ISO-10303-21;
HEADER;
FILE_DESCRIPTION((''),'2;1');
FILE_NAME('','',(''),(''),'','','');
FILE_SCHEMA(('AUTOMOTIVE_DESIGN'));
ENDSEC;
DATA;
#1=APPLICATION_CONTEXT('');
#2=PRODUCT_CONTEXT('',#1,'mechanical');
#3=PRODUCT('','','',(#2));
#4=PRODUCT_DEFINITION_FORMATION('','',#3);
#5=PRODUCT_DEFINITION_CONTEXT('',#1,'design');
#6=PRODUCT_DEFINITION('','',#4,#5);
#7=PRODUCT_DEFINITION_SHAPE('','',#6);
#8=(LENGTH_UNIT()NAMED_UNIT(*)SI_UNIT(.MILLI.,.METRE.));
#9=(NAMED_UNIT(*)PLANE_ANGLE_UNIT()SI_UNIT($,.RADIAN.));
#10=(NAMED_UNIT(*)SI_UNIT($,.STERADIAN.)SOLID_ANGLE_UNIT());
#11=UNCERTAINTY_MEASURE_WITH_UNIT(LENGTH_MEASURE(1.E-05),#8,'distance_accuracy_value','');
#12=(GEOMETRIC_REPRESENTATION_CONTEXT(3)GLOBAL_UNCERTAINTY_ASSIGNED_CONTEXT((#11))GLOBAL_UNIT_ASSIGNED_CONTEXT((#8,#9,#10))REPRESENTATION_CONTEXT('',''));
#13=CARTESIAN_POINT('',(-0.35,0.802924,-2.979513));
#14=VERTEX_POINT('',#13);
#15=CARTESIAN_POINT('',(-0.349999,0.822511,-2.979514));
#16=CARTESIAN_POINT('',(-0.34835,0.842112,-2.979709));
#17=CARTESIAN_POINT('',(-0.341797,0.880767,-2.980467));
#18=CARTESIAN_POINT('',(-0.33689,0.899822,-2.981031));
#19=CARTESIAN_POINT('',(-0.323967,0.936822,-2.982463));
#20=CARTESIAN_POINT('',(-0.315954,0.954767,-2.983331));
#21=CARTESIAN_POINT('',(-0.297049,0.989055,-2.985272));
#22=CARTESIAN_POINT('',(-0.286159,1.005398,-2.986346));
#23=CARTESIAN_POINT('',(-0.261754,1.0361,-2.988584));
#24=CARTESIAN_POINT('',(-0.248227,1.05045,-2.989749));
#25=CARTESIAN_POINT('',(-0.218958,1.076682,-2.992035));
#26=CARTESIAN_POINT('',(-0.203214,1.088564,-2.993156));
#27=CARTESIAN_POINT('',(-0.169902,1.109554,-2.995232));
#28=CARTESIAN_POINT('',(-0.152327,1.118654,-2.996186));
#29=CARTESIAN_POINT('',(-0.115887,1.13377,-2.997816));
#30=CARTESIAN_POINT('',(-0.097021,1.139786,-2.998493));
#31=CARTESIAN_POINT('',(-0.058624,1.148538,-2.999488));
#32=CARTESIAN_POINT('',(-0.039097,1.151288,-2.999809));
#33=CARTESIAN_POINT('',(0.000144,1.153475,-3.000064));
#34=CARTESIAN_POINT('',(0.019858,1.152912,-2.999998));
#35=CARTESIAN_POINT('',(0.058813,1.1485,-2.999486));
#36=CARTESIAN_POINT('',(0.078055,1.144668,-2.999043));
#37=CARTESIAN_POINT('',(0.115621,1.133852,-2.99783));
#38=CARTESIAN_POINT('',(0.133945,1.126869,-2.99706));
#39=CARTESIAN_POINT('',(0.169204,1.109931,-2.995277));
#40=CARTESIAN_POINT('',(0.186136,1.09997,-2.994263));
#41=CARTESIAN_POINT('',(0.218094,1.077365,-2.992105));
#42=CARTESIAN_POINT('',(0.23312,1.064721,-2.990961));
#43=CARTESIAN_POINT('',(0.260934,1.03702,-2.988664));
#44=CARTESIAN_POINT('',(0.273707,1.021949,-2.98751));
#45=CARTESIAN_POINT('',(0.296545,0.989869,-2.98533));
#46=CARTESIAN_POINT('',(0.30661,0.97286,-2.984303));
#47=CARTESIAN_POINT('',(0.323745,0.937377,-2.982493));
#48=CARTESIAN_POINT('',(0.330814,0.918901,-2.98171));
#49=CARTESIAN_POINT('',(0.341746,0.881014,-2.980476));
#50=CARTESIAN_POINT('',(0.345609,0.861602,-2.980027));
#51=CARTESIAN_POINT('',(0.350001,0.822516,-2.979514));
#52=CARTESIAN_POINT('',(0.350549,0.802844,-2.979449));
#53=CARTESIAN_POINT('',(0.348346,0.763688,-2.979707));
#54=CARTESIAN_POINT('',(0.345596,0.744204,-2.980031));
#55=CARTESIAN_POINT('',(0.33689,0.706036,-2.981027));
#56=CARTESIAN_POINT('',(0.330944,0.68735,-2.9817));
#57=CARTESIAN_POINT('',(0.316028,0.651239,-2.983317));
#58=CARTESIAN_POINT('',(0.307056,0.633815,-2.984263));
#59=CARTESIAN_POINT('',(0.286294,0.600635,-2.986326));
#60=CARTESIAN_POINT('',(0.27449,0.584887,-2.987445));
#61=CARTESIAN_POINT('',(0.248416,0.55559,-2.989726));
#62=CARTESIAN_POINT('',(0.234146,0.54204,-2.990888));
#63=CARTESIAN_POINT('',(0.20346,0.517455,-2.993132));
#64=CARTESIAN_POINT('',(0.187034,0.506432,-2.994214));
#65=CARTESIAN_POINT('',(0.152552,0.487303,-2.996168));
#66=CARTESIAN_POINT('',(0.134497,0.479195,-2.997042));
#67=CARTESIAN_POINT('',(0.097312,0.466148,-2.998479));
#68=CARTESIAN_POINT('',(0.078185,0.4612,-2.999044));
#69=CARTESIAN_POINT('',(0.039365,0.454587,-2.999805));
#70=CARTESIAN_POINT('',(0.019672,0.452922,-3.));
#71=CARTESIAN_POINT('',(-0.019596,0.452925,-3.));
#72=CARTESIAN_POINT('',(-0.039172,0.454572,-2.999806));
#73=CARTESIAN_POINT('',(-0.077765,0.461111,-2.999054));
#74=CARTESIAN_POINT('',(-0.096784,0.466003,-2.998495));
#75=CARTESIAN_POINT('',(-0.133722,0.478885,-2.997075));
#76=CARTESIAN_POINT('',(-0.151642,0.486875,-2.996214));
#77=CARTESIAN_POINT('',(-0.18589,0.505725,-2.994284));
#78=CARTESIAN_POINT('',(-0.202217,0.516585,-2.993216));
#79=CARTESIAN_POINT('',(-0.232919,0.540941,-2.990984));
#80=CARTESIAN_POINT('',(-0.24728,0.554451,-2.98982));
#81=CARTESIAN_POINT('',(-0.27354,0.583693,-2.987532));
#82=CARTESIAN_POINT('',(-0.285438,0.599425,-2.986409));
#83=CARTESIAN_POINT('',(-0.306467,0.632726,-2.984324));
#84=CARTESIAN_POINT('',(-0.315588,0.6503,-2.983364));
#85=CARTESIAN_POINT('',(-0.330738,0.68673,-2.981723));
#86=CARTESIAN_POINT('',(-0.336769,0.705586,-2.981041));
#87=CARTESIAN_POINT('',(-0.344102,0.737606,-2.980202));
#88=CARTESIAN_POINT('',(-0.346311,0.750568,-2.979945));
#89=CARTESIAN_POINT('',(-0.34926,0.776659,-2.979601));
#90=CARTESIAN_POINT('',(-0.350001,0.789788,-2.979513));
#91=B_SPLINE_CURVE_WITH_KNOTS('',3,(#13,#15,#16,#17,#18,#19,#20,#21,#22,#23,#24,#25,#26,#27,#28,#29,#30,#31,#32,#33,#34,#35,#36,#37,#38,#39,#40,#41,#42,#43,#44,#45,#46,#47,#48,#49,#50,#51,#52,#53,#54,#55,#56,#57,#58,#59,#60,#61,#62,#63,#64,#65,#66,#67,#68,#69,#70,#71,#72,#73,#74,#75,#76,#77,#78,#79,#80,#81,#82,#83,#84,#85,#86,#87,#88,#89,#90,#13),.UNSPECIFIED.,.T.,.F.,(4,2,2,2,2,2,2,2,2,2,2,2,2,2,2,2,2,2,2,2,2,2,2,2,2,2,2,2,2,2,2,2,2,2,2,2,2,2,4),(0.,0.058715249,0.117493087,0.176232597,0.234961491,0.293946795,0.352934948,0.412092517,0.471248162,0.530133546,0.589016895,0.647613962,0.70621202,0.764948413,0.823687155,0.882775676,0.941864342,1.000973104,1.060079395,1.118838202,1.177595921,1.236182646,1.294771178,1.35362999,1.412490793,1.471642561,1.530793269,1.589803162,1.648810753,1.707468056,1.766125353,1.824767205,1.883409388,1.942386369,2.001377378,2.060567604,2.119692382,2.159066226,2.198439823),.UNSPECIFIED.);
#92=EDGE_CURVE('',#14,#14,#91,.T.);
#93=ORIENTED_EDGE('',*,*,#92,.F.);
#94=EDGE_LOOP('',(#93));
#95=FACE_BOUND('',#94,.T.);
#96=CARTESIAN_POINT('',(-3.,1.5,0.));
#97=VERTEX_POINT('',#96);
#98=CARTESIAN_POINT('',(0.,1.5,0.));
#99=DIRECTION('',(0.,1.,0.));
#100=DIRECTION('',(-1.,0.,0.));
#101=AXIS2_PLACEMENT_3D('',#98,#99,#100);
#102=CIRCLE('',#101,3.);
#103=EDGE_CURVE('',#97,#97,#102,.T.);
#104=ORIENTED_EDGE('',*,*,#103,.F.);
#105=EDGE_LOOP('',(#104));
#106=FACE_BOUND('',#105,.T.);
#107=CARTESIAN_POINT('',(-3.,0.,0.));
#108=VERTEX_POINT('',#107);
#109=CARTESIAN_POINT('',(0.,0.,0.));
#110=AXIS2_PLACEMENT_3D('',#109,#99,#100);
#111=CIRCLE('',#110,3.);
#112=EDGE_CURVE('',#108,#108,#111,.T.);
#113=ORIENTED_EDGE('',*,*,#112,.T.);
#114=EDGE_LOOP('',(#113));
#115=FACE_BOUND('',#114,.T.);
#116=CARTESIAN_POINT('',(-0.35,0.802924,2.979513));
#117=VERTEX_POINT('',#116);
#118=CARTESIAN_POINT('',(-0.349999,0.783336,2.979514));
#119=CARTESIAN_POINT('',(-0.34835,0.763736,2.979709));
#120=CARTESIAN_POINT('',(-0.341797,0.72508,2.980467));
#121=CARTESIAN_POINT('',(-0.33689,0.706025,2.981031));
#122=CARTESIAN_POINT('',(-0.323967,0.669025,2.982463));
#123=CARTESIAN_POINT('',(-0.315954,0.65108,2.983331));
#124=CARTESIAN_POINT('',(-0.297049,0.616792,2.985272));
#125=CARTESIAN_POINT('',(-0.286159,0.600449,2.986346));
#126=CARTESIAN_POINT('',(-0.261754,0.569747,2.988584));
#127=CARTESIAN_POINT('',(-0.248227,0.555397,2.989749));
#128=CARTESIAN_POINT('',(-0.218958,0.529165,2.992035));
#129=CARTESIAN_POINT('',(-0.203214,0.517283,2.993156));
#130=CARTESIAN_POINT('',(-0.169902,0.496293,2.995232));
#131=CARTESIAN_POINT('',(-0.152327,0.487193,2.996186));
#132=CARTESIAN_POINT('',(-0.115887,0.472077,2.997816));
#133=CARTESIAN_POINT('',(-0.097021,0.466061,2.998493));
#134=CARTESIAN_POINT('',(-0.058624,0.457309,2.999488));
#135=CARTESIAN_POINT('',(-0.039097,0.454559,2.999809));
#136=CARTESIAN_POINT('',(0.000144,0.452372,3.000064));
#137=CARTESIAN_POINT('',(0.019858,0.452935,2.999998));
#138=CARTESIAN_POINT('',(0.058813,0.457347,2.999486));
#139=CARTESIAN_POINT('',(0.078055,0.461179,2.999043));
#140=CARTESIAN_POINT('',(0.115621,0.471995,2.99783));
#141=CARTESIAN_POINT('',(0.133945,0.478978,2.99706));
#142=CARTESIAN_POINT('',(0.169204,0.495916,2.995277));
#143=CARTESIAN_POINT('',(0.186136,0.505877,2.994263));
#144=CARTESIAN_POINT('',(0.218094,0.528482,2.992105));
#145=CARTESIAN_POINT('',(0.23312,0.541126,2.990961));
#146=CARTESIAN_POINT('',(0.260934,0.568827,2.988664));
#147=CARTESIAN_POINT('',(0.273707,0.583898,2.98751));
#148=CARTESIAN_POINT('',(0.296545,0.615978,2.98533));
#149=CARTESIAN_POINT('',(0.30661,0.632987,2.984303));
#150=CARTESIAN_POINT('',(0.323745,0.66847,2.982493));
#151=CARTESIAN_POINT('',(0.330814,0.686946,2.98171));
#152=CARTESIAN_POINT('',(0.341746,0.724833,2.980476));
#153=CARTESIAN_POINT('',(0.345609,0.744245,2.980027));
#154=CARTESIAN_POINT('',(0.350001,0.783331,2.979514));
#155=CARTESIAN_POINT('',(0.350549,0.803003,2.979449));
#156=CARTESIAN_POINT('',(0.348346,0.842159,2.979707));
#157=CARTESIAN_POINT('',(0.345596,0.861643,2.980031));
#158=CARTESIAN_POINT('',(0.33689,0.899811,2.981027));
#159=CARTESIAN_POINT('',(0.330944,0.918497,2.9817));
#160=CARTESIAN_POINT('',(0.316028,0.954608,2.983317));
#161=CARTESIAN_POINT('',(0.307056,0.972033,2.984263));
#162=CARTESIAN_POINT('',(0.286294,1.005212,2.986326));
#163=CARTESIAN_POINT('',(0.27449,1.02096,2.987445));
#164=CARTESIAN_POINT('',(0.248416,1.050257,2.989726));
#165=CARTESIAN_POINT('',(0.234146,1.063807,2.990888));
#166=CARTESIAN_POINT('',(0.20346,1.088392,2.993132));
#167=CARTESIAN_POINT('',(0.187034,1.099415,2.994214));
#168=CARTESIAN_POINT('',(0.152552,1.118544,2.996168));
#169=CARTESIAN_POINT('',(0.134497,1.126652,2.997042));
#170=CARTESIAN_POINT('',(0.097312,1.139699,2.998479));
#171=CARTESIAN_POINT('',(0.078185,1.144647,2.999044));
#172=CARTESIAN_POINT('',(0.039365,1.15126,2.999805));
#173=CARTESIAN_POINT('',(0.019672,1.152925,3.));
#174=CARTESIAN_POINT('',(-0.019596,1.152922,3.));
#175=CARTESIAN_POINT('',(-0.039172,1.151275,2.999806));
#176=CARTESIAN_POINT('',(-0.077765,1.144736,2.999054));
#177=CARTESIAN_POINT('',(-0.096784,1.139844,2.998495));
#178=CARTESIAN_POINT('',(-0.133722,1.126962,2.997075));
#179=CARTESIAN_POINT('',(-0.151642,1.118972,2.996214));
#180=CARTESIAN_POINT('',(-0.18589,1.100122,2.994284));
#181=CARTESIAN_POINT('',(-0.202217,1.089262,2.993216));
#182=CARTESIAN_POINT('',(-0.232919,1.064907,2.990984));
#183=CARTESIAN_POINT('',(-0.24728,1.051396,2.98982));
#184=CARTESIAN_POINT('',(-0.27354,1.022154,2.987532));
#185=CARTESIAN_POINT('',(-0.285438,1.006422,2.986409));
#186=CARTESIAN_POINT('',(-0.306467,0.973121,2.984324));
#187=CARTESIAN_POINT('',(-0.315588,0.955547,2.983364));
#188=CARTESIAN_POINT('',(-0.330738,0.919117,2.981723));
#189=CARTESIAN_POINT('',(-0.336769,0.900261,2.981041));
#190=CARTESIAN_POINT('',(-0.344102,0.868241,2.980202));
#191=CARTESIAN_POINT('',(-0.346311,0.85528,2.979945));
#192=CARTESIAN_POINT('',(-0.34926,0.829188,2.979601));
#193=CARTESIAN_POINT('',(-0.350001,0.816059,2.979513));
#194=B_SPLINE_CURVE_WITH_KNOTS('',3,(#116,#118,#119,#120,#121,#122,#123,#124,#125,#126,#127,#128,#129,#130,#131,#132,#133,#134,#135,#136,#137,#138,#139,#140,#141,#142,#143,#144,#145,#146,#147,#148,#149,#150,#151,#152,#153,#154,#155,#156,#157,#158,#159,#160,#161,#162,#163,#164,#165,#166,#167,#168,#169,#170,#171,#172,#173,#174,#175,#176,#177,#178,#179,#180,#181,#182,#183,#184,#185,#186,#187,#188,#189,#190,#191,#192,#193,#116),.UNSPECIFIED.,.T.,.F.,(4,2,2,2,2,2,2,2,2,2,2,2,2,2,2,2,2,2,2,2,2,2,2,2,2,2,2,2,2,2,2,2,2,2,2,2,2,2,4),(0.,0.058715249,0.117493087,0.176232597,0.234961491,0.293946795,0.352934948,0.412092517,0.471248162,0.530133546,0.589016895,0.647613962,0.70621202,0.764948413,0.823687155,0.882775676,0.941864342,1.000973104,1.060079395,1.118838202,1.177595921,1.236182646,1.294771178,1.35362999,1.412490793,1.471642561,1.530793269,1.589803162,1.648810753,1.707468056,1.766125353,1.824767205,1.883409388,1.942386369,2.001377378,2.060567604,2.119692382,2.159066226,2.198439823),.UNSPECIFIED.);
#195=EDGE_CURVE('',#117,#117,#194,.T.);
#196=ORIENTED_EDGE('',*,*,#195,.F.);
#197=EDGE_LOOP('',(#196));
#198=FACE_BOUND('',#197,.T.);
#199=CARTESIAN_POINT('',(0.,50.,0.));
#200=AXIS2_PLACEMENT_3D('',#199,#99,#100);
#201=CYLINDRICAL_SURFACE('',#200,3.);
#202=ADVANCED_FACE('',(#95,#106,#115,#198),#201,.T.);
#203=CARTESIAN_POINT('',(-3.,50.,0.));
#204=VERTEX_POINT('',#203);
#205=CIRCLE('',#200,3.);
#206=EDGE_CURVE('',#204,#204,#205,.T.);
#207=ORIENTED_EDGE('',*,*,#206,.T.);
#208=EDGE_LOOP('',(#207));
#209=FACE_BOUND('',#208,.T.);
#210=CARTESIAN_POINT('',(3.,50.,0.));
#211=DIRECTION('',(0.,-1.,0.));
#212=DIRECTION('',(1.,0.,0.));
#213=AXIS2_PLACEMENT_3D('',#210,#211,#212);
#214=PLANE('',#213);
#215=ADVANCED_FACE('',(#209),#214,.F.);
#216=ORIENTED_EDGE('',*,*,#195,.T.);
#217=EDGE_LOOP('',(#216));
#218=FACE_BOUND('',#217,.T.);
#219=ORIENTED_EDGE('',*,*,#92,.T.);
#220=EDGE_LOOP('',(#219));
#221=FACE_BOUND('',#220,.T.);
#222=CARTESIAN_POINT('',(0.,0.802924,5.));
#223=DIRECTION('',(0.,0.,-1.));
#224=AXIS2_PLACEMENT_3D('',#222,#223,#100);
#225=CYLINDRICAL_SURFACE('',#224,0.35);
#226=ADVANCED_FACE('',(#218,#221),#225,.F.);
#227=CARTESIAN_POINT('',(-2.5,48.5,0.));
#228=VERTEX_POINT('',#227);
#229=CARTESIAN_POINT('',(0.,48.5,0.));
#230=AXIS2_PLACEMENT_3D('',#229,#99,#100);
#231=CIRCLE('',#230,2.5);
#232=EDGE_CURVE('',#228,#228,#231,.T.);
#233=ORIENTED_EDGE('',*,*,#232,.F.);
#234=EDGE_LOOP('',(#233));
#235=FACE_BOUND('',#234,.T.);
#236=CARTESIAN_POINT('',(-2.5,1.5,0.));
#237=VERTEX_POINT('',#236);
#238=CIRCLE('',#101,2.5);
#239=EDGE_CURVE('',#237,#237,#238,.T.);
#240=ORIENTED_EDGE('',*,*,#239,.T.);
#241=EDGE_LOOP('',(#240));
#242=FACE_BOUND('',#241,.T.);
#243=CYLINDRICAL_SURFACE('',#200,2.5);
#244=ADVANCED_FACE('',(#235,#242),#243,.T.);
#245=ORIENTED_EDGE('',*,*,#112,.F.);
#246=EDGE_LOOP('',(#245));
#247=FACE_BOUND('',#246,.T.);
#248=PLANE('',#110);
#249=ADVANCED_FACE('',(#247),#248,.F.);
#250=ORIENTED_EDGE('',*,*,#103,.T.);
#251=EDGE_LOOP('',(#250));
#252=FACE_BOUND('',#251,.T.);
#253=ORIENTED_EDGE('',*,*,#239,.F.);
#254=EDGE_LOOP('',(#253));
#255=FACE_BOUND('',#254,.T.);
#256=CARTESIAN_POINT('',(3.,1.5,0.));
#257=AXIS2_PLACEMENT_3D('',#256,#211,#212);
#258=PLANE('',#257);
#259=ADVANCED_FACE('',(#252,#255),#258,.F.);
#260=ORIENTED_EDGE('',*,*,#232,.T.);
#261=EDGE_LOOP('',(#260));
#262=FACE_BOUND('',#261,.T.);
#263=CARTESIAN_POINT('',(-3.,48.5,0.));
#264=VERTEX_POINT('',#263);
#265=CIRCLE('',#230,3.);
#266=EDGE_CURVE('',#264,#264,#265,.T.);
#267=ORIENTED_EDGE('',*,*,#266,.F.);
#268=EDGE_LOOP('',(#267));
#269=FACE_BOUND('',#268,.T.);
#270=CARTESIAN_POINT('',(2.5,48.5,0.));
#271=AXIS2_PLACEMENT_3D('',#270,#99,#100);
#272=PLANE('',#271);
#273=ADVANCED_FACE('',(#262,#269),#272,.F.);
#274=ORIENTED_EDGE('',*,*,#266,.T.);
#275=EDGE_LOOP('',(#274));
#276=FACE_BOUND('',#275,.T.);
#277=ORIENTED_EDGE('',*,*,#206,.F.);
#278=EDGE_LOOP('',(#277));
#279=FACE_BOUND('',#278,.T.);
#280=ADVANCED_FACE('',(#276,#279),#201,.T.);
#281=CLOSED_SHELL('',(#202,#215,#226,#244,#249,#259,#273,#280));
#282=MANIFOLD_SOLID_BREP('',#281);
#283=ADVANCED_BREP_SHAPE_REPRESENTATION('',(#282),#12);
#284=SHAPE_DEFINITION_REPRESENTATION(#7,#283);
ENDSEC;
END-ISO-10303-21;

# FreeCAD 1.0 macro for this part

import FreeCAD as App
import Part
import Sketcher
from FreeCAD import Vector
Q = App.Units.Quantity


def add_polygon(sketch, points):
    """Adds a closed chain of lines whose ends are joined by coincident constraints."""
    first, n = sketch.GeometryCount, len(points)
    for a, b in zip(points, points[1:] + points[:1]):
        sketch.addGeometry(Part.LineSegment(App.Vector(*a, 0), App.Vector(*b, 0)), False)
    for i in range(n):
        sketch.addConstraint(Sketcher.Constraint("Coincident", first + i, 2, first + (i + 1) % n, 1))

doc = App.newDocument("Part")
body = doc.addObject("PartDesign::Body", "Body")

sketch1 = doc.addObject("Sketcher::SketchObject", "Sketch")
body.addObject(sketch1)
sketch1.AttachmentSupport = (doc.XY_Plane, [""])
sketch1.MapMode = "FlatFace"
add_polygon(sketch1, [(0, 0), (3, 0), (3, 1.5), (2.5, 1.5), (2.5, 48.5), (3, 48.5), (3, 50), (0, 50)])
sketch1.addConstraint([
    Sketcher.Constraint("Horizontal", 0),
    Sketcher.Constraint("Vertical", 1),
    Sketcher.Constraint("Horizontal", 2),
    Sketcher.Constraint("Vertical", 3),
    Sketcher.Constraint("Horizontal", 4),
    Sketcher.Constraint("Vertical", 5),
    Sketcher.Constraint("Horizontal", 6),
    Sketcher.Constraint("Vertical", 7),
    Sketcher.Constraint("Coincident", 7, 2, -1, 1),
    Sketcher.Constraint("Vertical", 1, 2, 4, 2),
    Sketcher.Constraint("Equal", 1, 5),
    Sketcher.Constraint("DistanceX", 0, 1, 0, 2, Q("3 mm")),
    Sketcher.Constraint("DistanceY", 3, 1, 3, 2, Q("47 mm")),
    Sketcher.Constraint("DistanceY", 7, 2, 7, 1, Q("50 mm")),
    Sketcher.Constraint("DistanceX", 2, 2, 2, 1, Q("0.5 mm")),
])
revolution = doc.addObject("PartDesign::Revolution", "Revolution")
body.addObject(revolution)
revolution.Profile = sketch1
revolution.ReferenceAxis = (sketch1, ["V_Axis"])
revolution.Angle = 360

sketch2 = doc.addObject("Sketcher::SketchObject", "Sketch001")
body.addObject(sketch2)
sketch2.AttachmentSupport = (doc.XY_Plane, [""])
sketch2.MapMode = "FlatFace"
sketch2.addGeometry(Part.Circle(Vector(0, 0.8, 0), Vector(0, 0, 1), 0.35), False)
sketch2.addConstraint([
    Sketcher.Constraint("PointOnObject", 0, 3, -2),
    Sketcher.Constraint("Diameter", 0, Q("0.7 mm")),
    Sketcher.Constraint("DistanceY", -1, 1, 0, 3, Q("0.802924 mm")),
])
pocket1 = doc.addObject("PartDesign::Pocket", "Pocket")
body.addObject(pocket1)
pocket1.Profile = sketch2
pocket1.Length = 10
pocket1.Midplane = True

doc.recompute()
